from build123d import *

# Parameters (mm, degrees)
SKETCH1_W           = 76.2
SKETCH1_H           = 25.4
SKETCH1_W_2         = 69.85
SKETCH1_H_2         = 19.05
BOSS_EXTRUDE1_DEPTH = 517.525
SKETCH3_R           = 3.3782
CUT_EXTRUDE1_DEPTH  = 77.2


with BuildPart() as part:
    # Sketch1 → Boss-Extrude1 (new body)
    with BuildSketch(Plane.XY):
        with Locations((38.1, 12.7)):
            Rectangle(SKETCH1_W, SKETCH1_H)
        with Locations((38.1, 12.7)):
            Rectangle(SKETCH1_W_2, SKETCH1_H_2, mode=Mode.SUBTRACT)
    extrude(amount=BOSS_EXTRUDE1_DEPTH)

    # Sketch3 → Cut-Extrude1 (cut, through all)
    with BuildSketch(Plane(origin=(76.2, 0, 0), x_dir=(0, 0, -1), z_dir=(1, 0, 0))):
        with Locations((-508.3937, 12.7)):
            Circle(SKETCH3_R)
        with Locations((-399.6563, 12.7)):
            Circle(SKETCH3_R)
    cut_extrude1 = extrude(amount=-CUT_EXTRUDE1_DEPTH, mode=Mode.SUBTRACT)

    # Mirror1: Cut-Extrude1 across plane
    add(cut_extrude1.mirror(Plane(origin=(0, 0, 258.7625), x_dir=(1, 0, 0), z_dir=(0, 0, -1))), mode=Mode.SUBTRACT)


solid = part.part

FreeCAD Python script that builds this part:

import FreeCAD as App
import Part
import Sketcher

V = App.Vector
Q = App.Units.Quantity


def add_polygon(sketch, points):
    """Adds a closed chain of lines whose ends are joined by coincident constraints."""
    first, n = sketch.GeometryCount, len(points)
    for a, b in zip(points, points[1:] + points[:1]):
        sketch.addGeometry(Part.LineSegment(App.Vector(*a, 0), App.Vector(*b, 0)), False)
    for i in range(n):
        sketch.addConstraint(Sketcher.Constraint("Coincident", first + i, 2, first + (i + 1) % n, 1))

doc = App.newDocument("Part")
body = doc.addObject("PartDesign::Body", "Body")

# Sketch on XY plane
sketch1 = body.newObject("Sketcher::SketchObject", "Sketch")
sketch1.AttachmentSupport = (doc.getObject("XY_Plane"), [""])
sketch1.MapMode = "FlatFace"
add_polygon(sketch1, [(0, 25), (0, 0), (76, 0), (76, 25)])  # lines 0-3
add_polygon(sketch1, [(73, 3), (3, 3), (3, 22), (73, 22)])  # lines 4-7
sketch1.addConstraint([
    Sketcher.Constraint("Vertical", 0),
    Sketcher.Constraint("Horizontal", 1),
    Sketcher.Constraint("Vertical", 2),
    Sketcher.Constraint("Horizontal", 3),
    Sketcher.Constraint("Horizontal", 4),
    Sketcher.Constraint("Vertical", 5),
    Sketcher.Constraint("Horizontal", 6),
    Sketcher.Constraint("Vertical", 7),
    Sketcher.Constraint("Coincident", 0, 2, -1, 1),
    Sketcher.Constraint("DistanceX", 1, 1, 1, 2, Q("3 in")),
    Sketcher.Constraint("DistanceY", 0, 2, 0, 1, Q("1 in")),
    Sketcher.Constraint("DistanceX", 4, 2, 4, 1, Q("2.75 in")),
    Sketcher.Constraint("DistanceY", 5, 1, 5, 2, Q("0.75 in")),
    Sketcher.Constraint("DistanceX", -1, 1, 4, 2, Q("0.125 in")),
    Sketcher.Constraint("DistanceY", -1, 1, 4, 2, Q("0.125 in")),
])
pad1 = body.newObject("PartDesign::Pad", "Pad")
pad1.Profile = sketch1
pad1.Length = Q("20.375 in")

# Sketch on YZ plane
sketch2 = body.newObject("Sketcher::SketchObject", "Sketch001")
sketch2.AttachmentSupport = (doc.getObject("YZ_Plane"), [""])
sketch2.MapMode = "FlatFace"
sketch2.AttachmentOffset = App.Placement(V(0, 0, 3 * 25.4), App.Rotation())
sketch2.addGeometry([
    Part.Circle(V(12.7, 508.4, 0), V(0, 0, 1), 3.4),
    Part.Circle(V(12.7, 399.7, 0), V(0, 0, 1), 3.4),
], False)
sketch2.addConstraint([
    Sketcher.Constraint("Equal", 0, 1),
    Sketcher.Constraint("Vertical", 0, 3, 1, 3),
    Sketcher.Constraint("Diameter", 0, Q("0.266 in")),
    Sketcher.Constraint("DistanceX", -1, 1, 0, 3, Q("0.5 in")),
    Sketcher.Constraint("DistanceY", 1, 3, 0, 3, Q("4.281 in")),
    Sketcher.Constraint("DistanceY", -1, 1, 0, 3, Q("20.0155 in")),
])
pocket1 = body.newObject("PartDesign::Pocket", "Pocket")
pocket1.Profile = sketch2
pocket1.Type = "ThroughAll"
doc.recompute()

datumplane = body.newObject("PartDesign::Plane", "DatumPlane")
datumplane.AttachmentSupport = (doc.getObject("XY_Plane"), [""])
datumplane.MapMode = "FlatFace"
datumplane.AttachmentOffset = App.Placement(V(0, 0, 10.1875 * 25.4), App.Rotation())
mirrored = body.newObject("PartDesign::Mirrored", "Mirrored")
mirrored.Originals = [pocket1]
mirrored.MirrorPlane = (datumplane, [""])
body.Tip = mirrored

doc.recompute()
